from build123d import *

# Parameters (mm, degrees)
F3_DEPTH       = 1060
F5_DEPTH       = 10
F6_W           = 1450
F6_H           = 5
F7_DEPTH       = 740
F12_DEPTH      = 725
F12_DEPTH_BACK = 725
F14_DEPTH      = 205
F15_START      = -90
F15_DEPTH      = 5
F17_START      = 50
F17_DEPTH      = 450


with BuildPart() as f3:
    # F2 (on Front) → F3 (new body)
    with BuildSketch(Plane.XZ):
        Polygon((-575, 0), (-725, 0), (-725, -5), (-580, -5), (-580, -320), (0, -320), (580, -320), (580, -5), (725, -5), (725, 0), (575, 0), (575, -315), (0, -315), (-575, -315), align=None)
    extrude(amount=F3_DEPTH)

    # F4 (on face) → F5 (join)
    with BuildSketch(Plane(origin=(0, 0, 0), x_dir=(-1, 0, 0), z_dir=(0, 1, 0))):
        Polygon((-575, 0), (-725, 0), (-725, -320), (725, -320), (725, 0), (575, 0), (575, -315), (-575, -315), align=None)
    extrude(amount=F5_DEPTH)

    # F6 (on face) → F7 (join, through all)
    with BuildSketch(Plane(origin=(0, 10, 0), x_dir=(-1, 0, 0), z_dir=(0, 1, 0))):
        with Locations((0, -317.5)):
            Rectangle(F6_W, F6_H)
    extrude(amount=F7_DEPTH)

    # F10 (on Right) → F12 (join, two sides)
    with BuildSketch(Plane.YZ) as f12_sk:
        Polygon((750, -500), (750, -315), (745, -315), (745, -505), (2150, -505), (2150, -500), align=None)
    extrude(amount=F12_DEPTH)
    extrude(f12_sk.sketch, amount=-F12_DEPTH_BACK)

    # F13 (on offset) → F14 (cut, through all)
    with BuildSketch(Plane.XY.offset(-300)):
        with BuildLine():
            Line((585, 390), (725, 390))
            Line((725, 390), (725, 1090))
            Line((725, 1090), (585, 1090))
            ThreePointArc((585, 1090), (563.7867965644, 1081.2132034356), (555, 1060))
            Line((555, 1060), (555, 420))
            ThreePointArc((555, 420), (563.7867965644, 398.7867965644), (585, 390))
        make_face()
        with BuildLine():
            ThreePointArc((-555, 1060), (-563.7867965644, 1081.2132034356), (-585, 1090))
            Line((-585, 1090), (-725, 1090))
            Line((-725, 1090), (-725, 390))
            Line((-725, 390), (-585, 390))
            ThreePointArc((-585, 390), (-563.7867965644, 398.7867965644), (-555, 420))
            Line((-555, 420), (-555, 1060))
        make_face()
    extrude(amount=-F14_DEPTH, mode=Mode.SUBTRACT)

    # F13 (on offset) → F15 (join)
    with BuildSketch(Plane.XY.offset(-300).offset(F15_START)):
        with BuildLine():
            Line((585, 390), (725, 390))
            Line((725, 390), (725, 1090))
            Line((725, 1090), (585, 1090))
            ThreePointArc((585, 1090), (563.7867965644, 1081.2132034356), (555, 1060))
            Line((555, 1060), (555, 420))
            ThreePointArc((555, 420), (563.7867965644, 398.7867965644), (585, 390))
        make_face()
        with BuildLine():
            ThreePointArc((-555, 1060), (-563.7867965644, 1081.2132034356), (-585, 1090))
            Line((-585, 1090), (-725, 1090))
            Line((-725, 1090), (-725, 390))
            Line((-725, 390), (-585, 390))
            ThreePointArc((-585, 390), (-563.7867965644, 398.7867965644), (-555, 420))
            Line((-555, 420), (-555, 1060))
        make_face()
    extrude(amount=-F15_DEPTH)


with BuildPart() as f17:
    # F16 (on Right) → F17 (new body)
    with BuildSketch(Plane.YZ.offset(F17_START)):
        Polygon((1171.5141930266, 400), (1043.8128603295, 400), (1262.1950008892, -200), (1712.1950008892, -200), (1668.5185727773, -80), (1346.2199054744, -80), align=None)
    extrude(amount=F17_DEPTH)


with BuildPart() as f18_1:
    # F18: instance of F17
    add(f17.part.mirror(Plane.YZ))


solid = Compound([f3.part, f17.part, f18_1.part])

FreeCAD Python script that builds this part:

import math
import FreeCAD as App
import Part
import Sketcher
Q = App.Units.Quantity

doc = App.newDocument("Part")
body = doc.addObject("PartDesign::Body", "Body")

# Sketch on XZ plane
sketch1 = body.newObject("Sketcher::SketchObject", "Sketch")
sketch1.AttachmentSupport = (doc.getObject("XZ_Plane"), [""])
sketch1.MapMode = "FlatFace"
sketch1.addGeometry(Part.LineSegment(App.Vector(-575, 0, 0), App.Vector(-725, 0, 0)), False)
sketch1.addGeometry(Part.LineSegment(App.Vector(-725, 0, 0), App.Vector(-725, -5, 0)), False)
sketch1.addGeometry(Part.LineSegment(App.Vector(-725, -5, 0), App.Vector(-580, -5, 0)), False)
sketch1.addGeometry(Part.LineSegment(App.Vector(-580, -5, 0), App.Vector(-580, -320, 0)), False)
sketch1.addGeometry(Part.LineSegment(App.Vector(-580, -320, 0), App.Vector(580, -320, 0)), False)
sketch1.addGeometry(Part.LineSegment(App.Vector(580, -320, 0), App.Vector(580, -5, 0)), False)
sketch1.addGeometry(Part.LineSegment(App.Vector(580, -5, 0), App.Vector(725, -5, 0)), False)
sketch1.addGeometry(Part.LineSegment(App.Vector(725, -5, 0), App.Vector(725, 0, 0)), False)
sketch1.addGeometry(Part.LineSegment(App.Vector(725, 0, 0), App.Vector(575, 0, 0)), False)
sketch1.addGeometry(Part.LineSegment(App.Vector(575, 0, 0), App.Vector(575, -315, 0)), False)
sketch1.addGeometry(Part.LineSegment(App.Vector(575, -315, 0), App.Vector(-575, -315, 0)), False)
sketch1.addGeometry(Part.LineSegment(App.Vector(-575, -315, 0), App.Vector(-575, 0, 0)), False)
sketch1.addConstraint(Sketcher.Constraint("Coincident", 0, 2, 1, 1))
sketch1.addConstraint(Sketcher.Constraint("Coincident", 1, 2, 2, 1))
sketch1.addConstraint(Sketcher.Constraint("Coincident", 2, 2, 3, 1))
sketch1.addConstraint(Sketcher.Constraint("Coincident", 3, 2, 4, 1))
sketch1.addConstraint(Sketcher.Constraint("Coincident", 4, 2, 5, 1))
sketch1.addConstraint(Sketcher.Constraint("Coincident", 5, 2, 6, 1))
sketch1.addConstraint(Sketcher.Constraint("Coincident", 6, 2, 7, 1))
sketch1.addConstraint(Sketcher.Constraint("Coincident", 7, 2, 8, 1))
sketch1.addConstraint(Sketcher.Constraint("Coincident", 8, 2, 9, 1))
sketch1.addConstraint(Sketcher.Constraint("Coincident", 9, 2, 10, 1))
sketch1.addConstraint(Sketcher.Constraint("Coincident", 10, 2, 11, 1))
sketch1.addConstraint(Sketcher.Constraint("Coincident", 11, 2, 0, 1))
sketch1.addConstraint(Sketcher.Constraint("Horizontal", 0))
sketch1.addConstraint(Sketcher.Constraint("Vertical", 1))
sketch1.addConstraint(Sketcher.Constraint("Horizontal", 2))
sketch1.addConstraint(Sketcher.Constraint("Vertical", 3))
sketch1.addConstraint(Sketcher.Constraint("Horizontal", 4))
sketch1.addConstraint(Sketcher.Constraint("Vertical", 5))
sketch1.addConstraint(Sketcher.Constraint("Horizontal", 6))
sketch1.addConstraint(Sketcher.Constraint("Vertical", 7))
sketch1.addConstraint(Sketcher.Constraint("Horizontal", 8))
sketch1.addConstraint(Sketcher.Constraint("Vertical", 9))
sketch1.addConstraint(Sketcher.Constraint("Horizontal", 10))
sketch1.addConstraint(Sketcher.Constraint("Vertical", 11))
sketch1.addConstraint(Sketcher.Constraint("Symmetric", 0, 2, 7, 2, -1, 1))
sketch1.addConstraint(Sketcher.Constraint("Symmetric", 2, 2, 5, 2, -2))
sketch1.addConstraint(Sketcher.Constraint("Symmetric", 8, 2, 11, 2, -2))
sketch1.addConstraint(Sketcher.Constraint("Equal", 5, 9))
sketch1.addConstraint(Sketcher.Constraint("DistanceX", 0, 2, 0, 1, 150.0))
sketch1.addConstraint(Sketcher.Constraint("DistanceX", 2, 1, 2, 2, 145.0))
sketch1.addConstraint(Sketcher.Constraint("DistanceX", 4, 1, 4, 2, 1160.0))
sketch1.addConstraint(Sketcher.Constraint("DistanceY", 1, 2, 1, 1, 5.0))
sketch1.addConstraint(Sketcher.Constraint("DistanceY", 3, 2, 3, 1, 315.0))
pad1 = body.newObject("PartDesign::Pad", "Pad")
pad1.Profile = sketch1
pad1.Length = 1060

# Sketch on XZ plane
sketch2 = body.newObject("Sketcher::SketchObject", "Sketch001")
sketch2.AttachmentSupport = (doc.getObject("XZ_Plane"), [""])
sketch2.MapMode = "FlatFace"
sketch2.addGeometry(Part.LineSegment(App.Vector(575, 0, 0), App.Vector(725, 0, 0)), False)
sketch2.addGeometry(Part.LineSegment(App.Vector(725, 0, 0), App.Vector(725, -320, 0)), False)
sketch2.addGeometry(Part.LineSegment(App.Vector(725, -320, 0), App.Vector(-725, -320, 0)), False)
sketch2.addGeometry(Part.LineSegment(App.Vector(-725, -320, 0), App.Vector(-725, 0, 0)), False)
sketch2.addGeometry(Part.LineSegment(App.Vector(-725, 0, 0), App.Vector(-575, 0, 0)), False)
sketch2.addGeometry(Part.LineSegment(App.Vector(-575, 0, 0), App.Vector(-575, -315, 0)), False)
sketch2.addGeometry(Part.LineSegment(App.Vector(-575, -315, 0), App.Vector(575, -315, 0)), False)
sketch2.addGeometry(Part.LineSegment(App.Vector(575, -315, 0), App.Vector(575, 0, 0)), False)
sketch2.addConstraint(Sketcher.Constraint("Coincident", 0, 2, 1, 1))
sketch2.addConstraint(Sketcher.Constraint("Coincident", 1, 2, 2, 1))
sketch2.addConstraint(Sketcher.Constraint("Coincident", 2, 2, 3, 1))
sketch2.addConstraint(Sketcher.Constraint("Coincident", 3, 2, 4, 1))
sketch2.addConstraint(Sketcher.Constraint("Coincident", 4, 2, 5, 1))
sketch2.addConstraint(Sketcher.Constraint("Coincident", 5, 2, 6, 1))
sketch2.addConstraint(Sketcher.Constraint("Coincident", 6, 2, 7, 1))
sketch2.addConstraint(Sketcher.Constraint("Coincident", 7, 2, 0, 1))
sketch2.addConstraint(Sketcher.Constraint("Horizontal", 0))
sketch2.addConstraint(Sketcher.Constraint("Vertical", 1))
sketch2.addConstraint(Sketcher.Constraint("Horizontal", 2))
sketch2.addConstraint(Sketcher.Constraint("Vertical", 3))
sketch2.addConstraint(Sketcher.Constraint("Horizontal", 4))
sketch2.addConstraint(Sketcher.Constraint("Vertical", 5))
sketch2.addConstraint(Sketcher.Constraint("Horizontal", 6))
sketch2.addConstraint(Sketcher.Constraint("Vertical", 7))
sketch2.addConstraint(Sketcher.Constraint("Symmetric", 0, 2, 3, 2, -1, 1))
sketch2.addConstraint(Sketcher.Constraint("Symmetric", 4, 2, 7, 2, -2))
sketch2.addConstraint(Sketcher.Constraint("DistanceX", 0, 1, 0, 2, 150.0))
sketch2.addConstraint(Sketcher.Constraint("DistanceX", 2, 2, 2, 1, 1450.0))
sketch2.addConstraint(Sketcher.Constraint("DistanceY", 1, 2, 1, 1, 320.0))
sketch2.addConstraint(Sketcher.Constraint("DistanceY", 5, 2, 5, 1, 315.0))
pad2 = body.newObject("PartDesign::Pad", "Pad001")
pad2.Profile = sketch2
pad2.Length = 10
pad2.Reversed = True

# Sketch on XZ plane
sketch3 = body.newObject("Sketcher::SketchObject", "Sketch002")
sketch3.AttachmentSupport = (doc.getObject("XZ_Plane"), [""])
sketch3.MapMode = "FlatFace"
sketch3.AttachmentOffset = App.Placement(App.Vector(0, 0, -10), App.Rotation())
sketch3.addGeometry(Part.LineSegment(App.Vector(725, -315, 0), App.Vector(725, -320, 0)), False)
sketch3.addGeometry(Part.LineSegment(App.Vector(725, -320, 0), App.Vector(-725, -320, 0)), False)
sketch3.addGeometry(Part.LineSegment(App.Vector(-725, -320, 0), App.Vector(-725, -315, 0)), False)
sketch3.addGeometry(Part.LineSegment(App.Vector(-725, -315, 0), App.Vector(725, -315, 0)), False)
sketch3.addConstraint(Sketcher.Constraint("Coincident", 0, 2, 1, 1))
sketch3.addConstraint(Sketcher.Constraint("Coincident", 1, 2, 2, 1))
sketch3.addConstraint(Sketcher.Constraint("Coincident", 2, 2, 3, 1))
sketch3.addConstraint(Sketcher.Constraint("Coincident", 3, 2, 0, 1))
sketch3.addConstraint(Sketcher.Constraint("Vertical", 0))
sketch3.addConstraint(Sketcher.Constraint("Horizontal", 1))
sketch3.addConstraint(Sketcher.Constraint("Vertical", 2))
sketch3.addConstraint(Sketcher.Constraint("Horizontal", 3))
sketch3.addConstraint(Sketcher.Constraint("DistanceX", 1, 2, 1, 1, 1450.0))
sketch3.addConstraint(Sketcher.Constraint("DistanceY", 0, 2, 0, 1, 5.0))
sketch3.addConstraint(Sketcher.Constraint("DistanceX", -1, 1, 0, 2, 725.0))
sketch3.addConstraint(Sketcher.Constraint("DistanceY", 0, 2, -1, 1, 320.0))
pad3 = body.newObject("PartDesign::Pad", "Pad002")
pad3.Profile = sketch3
pad3.Length = 740
pad3.Reversed = True

# Sketch on YZ plane
sketch4 = body.newObject("Sketcher::SketchObject", "Sketch003")
sketch4.AttachmentSupport = (doc.getObject("YZ_Plane"), [""])
sketch4.MapMode = "FlatFace"
sketch4.addGeometry(Part.LineSegment(App.Vector(750, -500, 0), App.Vector(750, -315, 0)), False)
sketch4.addGeometry(Part.LineSegment(App.Vector(750, -315, 0), App.Vector(745, -315, 0)), False)
sketch4.addGeometry(Part.LineSegment(App.Vector(745, -315, 0), App.Vector(745, -505, 0)), False)
sketch4.addGeometry(Part.LineSegment(App.Vector(745, -505, 0), App.Vector(2150, -505, 0)), False)
sketch4.addGeometry(Part.LineSegment(App.Vector(2150, -505, 0), App.Vector(2150, -500, 0)), False)
sketch4.addGeometry(Part.LineSegment(App.Vector(2150, -500, 0), App.Vector(750, -500, 0)), False)
sketch4.addConstraint(Sketcher.Constraint("Coincident", 0, 2, 1, 1))
sketch4.addConstraint(Sketcher.Constraint("Coincident", 1, 2, 2, 1))
sketch4.addConstraint(Sketcher.Constraint("Coincident", 2, 2, 3, 1))
sketch4.addConstraint(Sketcher.Constraint("Coincident", 3, 2, 4, 1))
sketch4.addConstraint(Sketcher.Constraint("Coincident", 4, 2, 5, 1))
sketch4.addConstraint(Sketcher.Constraint("Coincident", 5, 2, 0, 1))
sketch4.addConstraint(Sketcher.Constraint("Vertical", 0))
sketch4.addConstraint(Sketcher.Constraint("Horizontal", 1))
sketch4.addConstraint(Sketcher.Constraint("Vertical", 2))
sketch4.addConstraint(Sketcher.Constraint("Horizontal", 3))
sketch4.addConstraint(Sketcher.Constraint("Vertical", 4))
sketch4.addConstraint(Sketcher.Constraint("Horizontal", 5))
sketch4.addConstraint(Sketcher.Constraint("Equal", 1, 4))
sketch4.addConstraint(Sketcher.Constraint("DistanceX", 1, 2, 1, 1, 5.0))
sketch4.addConstraint(Sketcher.Constraint("DistanceX", 3, 1, 3, 2, 1405.0))
sketch4.addConstraint(Sketcher.Constraint("DistanceY", 0, 1, 0, 2, 185.0))
sketch4.addConstraint(Sketcher.Constraint("DistanceX", -1, 1, 0, 2, 750.0))
sketch4.addConstraint(Sketcher.Constraint("DistanceY", 0, 2, -1, 1, 315.0))
pad4 = body.newObject("PartDesign::Pad", "Pad003")
pad4.Profile = sketch4
pad4.Type = "TwoLengths"
pad4.Length = 725
pad4.Length2 = 725

# Sketch on XY plane
sketch5 = body.newObject("Sketcher::SketchObject", "Sketch004")
sketch5.AttachmentSupport = (doc.getObject("XY_Plane"), [""])
sketch5.MapMode = "FlatFace"
sketch5.AttachmentOffset = App.Placement(App.Vector(0, 0, -300), App.Rotation())
sketch5.addGeometry(Part.LineSegment(App.Vector(585, 390, 0), App.Vector(725, 390, 0)), False)
sketch5.addGeometry(Part.LineSegment(App.Vector(725, 390, 0), App.Vector(725, 1090, 0)), False)
sketch5.addGeometry(Part.LineSegment(App.Vector(725, 1090, 0), App.Vector(585, 1090, 0)), False)
sketch5.addGeometry(Part.ArcOfCircle(Part.Circle(App.Vector(585, 1060, 0), App.Vector(0, 0, 1), 30), math.radians(90), math.radians(180)), False)
sketch5.addGeometry(Part.LineSegment(App.Vector(555, 1060, 0), App.Vector(555, 420, 0)), False)
sketch5.addGeometry(Part.ArcOfCircle(Part.Circle(App.Vector(585, 420, 0), App.Vector(0, 0, 1), 30), math.radians(180), math.radians(270)), False)
sketch5.addGeometry(Part.ArcOfCircle(Part.Circle(App.Vector(-585, 1060, 0), App.Vector(0, 0, 1), 30), math.radians(0), math.radians(90)), False)
sketch5.addGeometry(Part.LineSegment(App.Vector(-585, 1090, 0), App.Vector(-725, 1090, 0)), False)
sketch5.addGeometry(Part.LineSegment(App.Vector(-725, 1090, 0), App.Vector(-725, 390, 0)), False)
sketch5.addGeometry(Part.LineSegment(App.Vector(-725, 390, 0), App.Vector(-585, 390, 0)), False)
sketch5.addGeometry(Part.ArcOfCircle(Part.Circle(App.Vector(-585, 420, 0), App.Vector(0, 0, 1), 30), math.radians(-90), math.radians(0)), False)
sketch5.addGeometry(Part.LineSegment(App.Vector(-555, 420, 0), App.Vector(-555, 1060, 0)), False)
sketch5.addConstraint(Sketcher.Constraint("Coincident", 0, 2, 1, 1))
sketch5.addConstraint(Sketcher.Constraint("Coincident", 1, 2, 2, 1))
sketch5.addConstraint(Sketcher.Constraint("Tangent", 2, 2, 3, 1))
sketch5.addConstraint(Sketcher.Constraint("Tangent", 3, 2, 4, 1))
sketch5.addConstraint(Sketcher.Constraint("Tangent", 4, 2, 5, 1))
sketch5.addConstraint(Sketcher.Constraint("Tangent", 5, 2, 0, 1))
sketch5.addConstraint(Sketcher.Constraint("Tangent", 6, 2, 7, 1))
sketch5.addConstraint(Sketcher.Constraint("Coincident", 7, 2, 8, 1))
sketch5.addConstraint(Sketcher.Constraint("Coincident", 8, 2, 9, 1))
sketch5.addConstraint(Sketcher.Constraint("Tangent", 9, 2, 10, 1))
sketch5.addConstraint(Sketcher.Constraint("Tangent", 10, 2, 11, 1))
sketch5.addConstraint(Sketcher.Constraint("Tangent", 11, 2, 6, 1))
sketch5.addConstraint(Sketcher.Constraint("Horizontal", 0))
sketch5.addConstraint(Sketcher.Constraint("Vertical", 1))
sketch5.addConstraint(Sketcher.Constraint("Horizontal", 2))
sketch5.addConstraint(Sketcher.Constraint("Vertical", 4))
sketch5.addConstraint(Sketcher.Constraint("Horizontal", 7))
sketch5.addConstraint(Sketcher.Constraint("Vertical", 8))
sketch5.addConstraint(Sketcher.Constraint("Horizontal", 9))
sketch5.addConstraint(Sketcher.Constraint("Vertical", 11))
sketch5.addConstraint(Sketcher.Constraint("Equal", 3, 5))
sketch5.addConstraint(Sketcher.Constraint("Equal", 5, 6))
sketch5.addConstraint(Sketcher.Constraint("Equal", 6, 10))
sketch5.addConstraint(Sketcher.Constraint("Symmetric", 3, 3, 6, 3, -2))
sketch5.addConstraint(Sketcher.Constraint("Symmetric", 0, 2, 8, 2, -2))
sketch5.addConstraint(Sketcher.Constraint("Radius", 3, 30.0))
sketch5.addConstraint(Sketcher.Constraint("DistanceX", 0, 1, 0, 2, 140.0))
sketch5.addConstraint(Sketcher.Constraint("DistanceY", 1, 1, 1, 2, 700.0))
sketch5.addConstraint(Sketcher.Constraint("DistanceX", -1, 1, 3, 3, 585.0))
sketch5.addConstraint(Sketcher.Constraint("DistanceY", -1, 1, 3, 3, 1060.0))
pocket1 = body.newObject("PartDesign::Pocket", "Pocket")
pocket1.Profile = sketch5
pocket1.Type = "ThroughAll"

# Sketch on XY plane
sketch6 = body.newObject("Sketcher::SketchObject", "Sketch005")
sketch6.AttachmentSupport = (doc.getObject("XY_Plane"), [""])
sketch6.MapMode = "FlatFace"
sketch6.AttachmentOffset = App.Placement(App.Vector(0, 0, -390), App.Rotation())
sketch6.addGeometry(Part.LineSegment(App.Vector(585, 390, 0), App.Vector(725, 390, 0)), False)
sketch6.addGeometry(Part.LineSegment(App.Vector(725, 390, 0), App.Vector(725, 1090, 0)), False)
sketch6.addGeometry(Part.LineSegment(App.Vector(725, 1090, 0), App.Vector(585, 1090, 0)), False)
sketch6.addGeometry(Part.ArcOfCircle(Part.Circle(App.Vector(585, 1060, 0), App.Vector(0, 0, 1), 30), math.radians(90), math.radians(180)), False)
sketch6.addGeometry(Part.LineSegment(App.Vector(555, 1060, 0), App.Vector(555, 420, 0)), False)
sketch6.addGeometry(Part.ArcOfCircle(Part.Circle(App.Vector(585, 420, 0), App.Vector(0, 0, 1), 30), math.radians(180), math.radians(270)), False)
sketch6.addGeometry(Part.ArcOfCircle(Part.Circle(App.Vector(-585, 1060, 0), App.Vector(0, 0, 1), 30), math.radians(0), math.radians(90)), False)
sketch6.addGeometry(Part.LineSegment(App.Vector(-585, 1090, 0), App.Vector(-725, 1090, 0)), False)
sketch6.addGeometry(Part.LineSegment(App.Vector(-725, 1090, 0), App.Vector(-725, 390, 0)), False)
sketch6.addGeometry(Part.LineSegment(App.Vector(-725, 390, 0), App.Vector(-585, 390, 0)), False)
sketch6.addGeometry(Part.ArcOfCircle(Part.Circle(App.Vector(-585, 420, 0), App.Vector(0, 0, 1), 30), math.radians(-90), math.radians(0)), False)
sketch6.addGeometry(Part.LineSegment(App.Vector(-555, 420, 0), App.Vector(-555, 1060, 0)), False)
sketch6.addConstraint(Sketcher.Constraint("Coincident", 0, 2, 1, 1))
sketch6.addConstraint(Sketcher.Constraint("Coincident", 1, 2, 2, 1))
sketch6.addConstraint(Sketcher.Constraint("Tangent", 2, 2, 3, 1))
sketch6.addConstraint(Sketcher.Constraint("Tangent", 3, 2, 4, 1))
sketch6.addConstraint(Sketcher.Constraint("Tangent", 4, 2, 5, 1))
sketch6.addConstraint(Sketcher.Constraint("Tangent", 5, 2, 0, 1))
sketch6.addConstraint(Sketcher.Constraint("Tangent", 6, 2, 7, 1))
sketch6.addConstraint(Sketcher.Constraint("Coincident", 7, 2, 8, 1))
sketch6.addConstraint(Sketcher.Constraint("Coincident", 8, 2, 9, 1))
sketch6.addConstraint(Sketcher.Constraint("Tangent", 9, 2, 10, 1))
sketch6.addConstraint(Sketcher.Constraint("Tangent", 10, 2, 11, 1))
sketch6.addConstraint(Sketcher.Constraint("Tangent", 11, 2, 6, 1))
sketch6.addConstraint(Sketcher.Constraint("Horizontal", 0))
sketch6.addConstraint(Sketcher.Constraint("Vertical", 1))
sketch6.addConstraint(Sketcher.Constraint("Horizontal", 2))
sketch6.addConstraint(Sketcher.Constraint("Vertical", 4))
sketch6.addConstraint(Sketcher.Constraint("Horizontal", 7))
sketch6.addConstraint(Sketcher.Constraint("Vertical", 8))
sketch6.addConstraint(Sketcher.Constraint("Horizontal", 9))
sketch6.addConstraint(Sketcher.Constraint("Vertical", 11))
sketch6.addConstraint(Sketcher.Constraint("Equal", 3, 5))
sketch6.addConstraint(Sketcher.Constraint("Equal", 5, 6))
sketch6.addConstraint(Sketcher.Constraint("Equal", 6, 10))
sketch6.addConstraint(Sketcher.Constraint("Symmetric", 3, 3, 6, 3, -2))
sketch6.addConstraint(Sketcher.Constraint("Symmetric", 0, 2, 8, 2, -2))
sketch6.addConstraint(Sketcher.Constraint("Radius", 3, 30.0))
sketch6.addConstraint(Sketcher.Constraint("DistanceX", 0, 1, 0, 2, 140.0))
sketch6.addConstraint(Sketcher.Constraint("DistanceY", 1, 1, 1, 2, 700.0))
sketch6.addConstraint(Sketcher.Constraint("DistanceX", -1, 1, 3, 3, 585.0))
sketch6.addConstraint(Sketcher.Constraint("DistanceY", -1, 1, 3, 3, 1060.0))
pad5 = body.newObject("PartDesign::Pad", "Pad004")
pad5.Profile = sketch6
pad5.Length = 5
pad5.Reversed = True
body2 = doc.addObject("PartDesign::Body", "Body001")

# Sketch on YZ plane
sketch7 = body2.newObject("Sketcher::SketchObject", "Sketch006")
sketch7.AttachmentSupport = (doc.getObject("YZ_Plane001"), [""])
sketch7.MapMode = "FlatFace"
sketch7.AttachmentOffset = App.Placement(App.Vector(0, 0, 50), App.Rotation())
sketch7.addGeometry(Part.LineSegment(App.Vector(1172, 400, 0), App.Vector(1044, 400, 0)), False)
sketch7.addGeometry(Part.LineSegment(App.Vector(1044, 400, 0), App.Vector(1262, -200, 0)), False)
sketch7.addGeometry(Part.LineSegment(App.Vector(1262, -200, 0), App.Vector(1712, -200, 0)), False)
sketch7.addGeometry(Part.LineSegment(App.Vector(1712, -200, 0), App.Vector(1669, -80, 0)), False)
sketch7.addGeometry(Part.LineSegment(App.Vector(1669, -80, 0), App.Vector(1346, -80, 0)), False)
sketch7.addGeometry(Part.LineSegment(App.Vector(1346, -80, 0), App.Vector(1172, 400, 0)), False)
sketch7.addConstraint(Sketcher.Constraint("Coincident", 0, 2, 1, 1))
sketch7.addConstraint(Sketcher.Constraint("Coincident", 1, 2, 2, 1))
sketch7.addConstraint(Sketcher.Constraint("Coincident", 2, 2, 3, 1))
sketch7.addConstraint(Sketcher.Constraint("Coincident", 3, 2, 4, 1))
sketch7.addConstraint(Sketcher.Constraint("Coincident", 4, 2, 5, 1))
sketch7.addConstraint(Sketcher.Constraint("Coincident", 5, 2, 0, 1))
sketch7.addConstraint(Sketcher.Constraint("Horizontal", 0))
sketch7.addConstraint(Sketcher.Constraint("Horizontal", 2))
sketch7.addConstraint(Sketcher.Constraint("Horizontal", 4))
sketch7.addConstraint(Sketcher.Constraint("Parallel", 1, 3))
sketch7.addConstraint(Sketcher.Constraint("Parallel", 3, 5))
sketch7.addConstraint(Sketcher.Constraint("DistanceX", 2, 1, 2, 2, 450.0))
sketch7.addConstraint(Sketcher.Constraint("Angle", 1, Q("-70 deg")))
sketch7.addConstraint(Sketcher.Constraint("DistanceY", -1, 1, 0, 2, 400.0))
sketch7.addConstraint(Sketcher.Constraint("DistanceY", 1, 2, -1, 1, 200.0))
sketch7.addConstraint(Sketcher.Constraint("DistanceY", 3, 2, -1, 1, 80.0))
sketch7.addConstraint(Sketcher.Constraint("DistanceX", -1, 1, 1, 2, 1262.195001))
sketch7.addConstraint(Sketcher.Constraint("DistanceX", 0, 2, 0, 1, 127.701333))
pad6 = body2.newObject("PartDesign::Pad", "Pad005")
pad6.Profile = sketch7
pad6.Length = 450
body3 = doc.addObject("PartDesign::Body", "Body002")
doc.recompute()

mirroring = doc.addObject("Part::Mirroring", "Mirroring")
mirroring.Source = body2
mirroring.Base = App.Vector(0, 0, 0)
mirroring.Normal = App.Vector(1, 0, 0)
body3.BaseFeature = mirroring
doc.recompute()
mirroring.Visibility = False

doc.recompute()
